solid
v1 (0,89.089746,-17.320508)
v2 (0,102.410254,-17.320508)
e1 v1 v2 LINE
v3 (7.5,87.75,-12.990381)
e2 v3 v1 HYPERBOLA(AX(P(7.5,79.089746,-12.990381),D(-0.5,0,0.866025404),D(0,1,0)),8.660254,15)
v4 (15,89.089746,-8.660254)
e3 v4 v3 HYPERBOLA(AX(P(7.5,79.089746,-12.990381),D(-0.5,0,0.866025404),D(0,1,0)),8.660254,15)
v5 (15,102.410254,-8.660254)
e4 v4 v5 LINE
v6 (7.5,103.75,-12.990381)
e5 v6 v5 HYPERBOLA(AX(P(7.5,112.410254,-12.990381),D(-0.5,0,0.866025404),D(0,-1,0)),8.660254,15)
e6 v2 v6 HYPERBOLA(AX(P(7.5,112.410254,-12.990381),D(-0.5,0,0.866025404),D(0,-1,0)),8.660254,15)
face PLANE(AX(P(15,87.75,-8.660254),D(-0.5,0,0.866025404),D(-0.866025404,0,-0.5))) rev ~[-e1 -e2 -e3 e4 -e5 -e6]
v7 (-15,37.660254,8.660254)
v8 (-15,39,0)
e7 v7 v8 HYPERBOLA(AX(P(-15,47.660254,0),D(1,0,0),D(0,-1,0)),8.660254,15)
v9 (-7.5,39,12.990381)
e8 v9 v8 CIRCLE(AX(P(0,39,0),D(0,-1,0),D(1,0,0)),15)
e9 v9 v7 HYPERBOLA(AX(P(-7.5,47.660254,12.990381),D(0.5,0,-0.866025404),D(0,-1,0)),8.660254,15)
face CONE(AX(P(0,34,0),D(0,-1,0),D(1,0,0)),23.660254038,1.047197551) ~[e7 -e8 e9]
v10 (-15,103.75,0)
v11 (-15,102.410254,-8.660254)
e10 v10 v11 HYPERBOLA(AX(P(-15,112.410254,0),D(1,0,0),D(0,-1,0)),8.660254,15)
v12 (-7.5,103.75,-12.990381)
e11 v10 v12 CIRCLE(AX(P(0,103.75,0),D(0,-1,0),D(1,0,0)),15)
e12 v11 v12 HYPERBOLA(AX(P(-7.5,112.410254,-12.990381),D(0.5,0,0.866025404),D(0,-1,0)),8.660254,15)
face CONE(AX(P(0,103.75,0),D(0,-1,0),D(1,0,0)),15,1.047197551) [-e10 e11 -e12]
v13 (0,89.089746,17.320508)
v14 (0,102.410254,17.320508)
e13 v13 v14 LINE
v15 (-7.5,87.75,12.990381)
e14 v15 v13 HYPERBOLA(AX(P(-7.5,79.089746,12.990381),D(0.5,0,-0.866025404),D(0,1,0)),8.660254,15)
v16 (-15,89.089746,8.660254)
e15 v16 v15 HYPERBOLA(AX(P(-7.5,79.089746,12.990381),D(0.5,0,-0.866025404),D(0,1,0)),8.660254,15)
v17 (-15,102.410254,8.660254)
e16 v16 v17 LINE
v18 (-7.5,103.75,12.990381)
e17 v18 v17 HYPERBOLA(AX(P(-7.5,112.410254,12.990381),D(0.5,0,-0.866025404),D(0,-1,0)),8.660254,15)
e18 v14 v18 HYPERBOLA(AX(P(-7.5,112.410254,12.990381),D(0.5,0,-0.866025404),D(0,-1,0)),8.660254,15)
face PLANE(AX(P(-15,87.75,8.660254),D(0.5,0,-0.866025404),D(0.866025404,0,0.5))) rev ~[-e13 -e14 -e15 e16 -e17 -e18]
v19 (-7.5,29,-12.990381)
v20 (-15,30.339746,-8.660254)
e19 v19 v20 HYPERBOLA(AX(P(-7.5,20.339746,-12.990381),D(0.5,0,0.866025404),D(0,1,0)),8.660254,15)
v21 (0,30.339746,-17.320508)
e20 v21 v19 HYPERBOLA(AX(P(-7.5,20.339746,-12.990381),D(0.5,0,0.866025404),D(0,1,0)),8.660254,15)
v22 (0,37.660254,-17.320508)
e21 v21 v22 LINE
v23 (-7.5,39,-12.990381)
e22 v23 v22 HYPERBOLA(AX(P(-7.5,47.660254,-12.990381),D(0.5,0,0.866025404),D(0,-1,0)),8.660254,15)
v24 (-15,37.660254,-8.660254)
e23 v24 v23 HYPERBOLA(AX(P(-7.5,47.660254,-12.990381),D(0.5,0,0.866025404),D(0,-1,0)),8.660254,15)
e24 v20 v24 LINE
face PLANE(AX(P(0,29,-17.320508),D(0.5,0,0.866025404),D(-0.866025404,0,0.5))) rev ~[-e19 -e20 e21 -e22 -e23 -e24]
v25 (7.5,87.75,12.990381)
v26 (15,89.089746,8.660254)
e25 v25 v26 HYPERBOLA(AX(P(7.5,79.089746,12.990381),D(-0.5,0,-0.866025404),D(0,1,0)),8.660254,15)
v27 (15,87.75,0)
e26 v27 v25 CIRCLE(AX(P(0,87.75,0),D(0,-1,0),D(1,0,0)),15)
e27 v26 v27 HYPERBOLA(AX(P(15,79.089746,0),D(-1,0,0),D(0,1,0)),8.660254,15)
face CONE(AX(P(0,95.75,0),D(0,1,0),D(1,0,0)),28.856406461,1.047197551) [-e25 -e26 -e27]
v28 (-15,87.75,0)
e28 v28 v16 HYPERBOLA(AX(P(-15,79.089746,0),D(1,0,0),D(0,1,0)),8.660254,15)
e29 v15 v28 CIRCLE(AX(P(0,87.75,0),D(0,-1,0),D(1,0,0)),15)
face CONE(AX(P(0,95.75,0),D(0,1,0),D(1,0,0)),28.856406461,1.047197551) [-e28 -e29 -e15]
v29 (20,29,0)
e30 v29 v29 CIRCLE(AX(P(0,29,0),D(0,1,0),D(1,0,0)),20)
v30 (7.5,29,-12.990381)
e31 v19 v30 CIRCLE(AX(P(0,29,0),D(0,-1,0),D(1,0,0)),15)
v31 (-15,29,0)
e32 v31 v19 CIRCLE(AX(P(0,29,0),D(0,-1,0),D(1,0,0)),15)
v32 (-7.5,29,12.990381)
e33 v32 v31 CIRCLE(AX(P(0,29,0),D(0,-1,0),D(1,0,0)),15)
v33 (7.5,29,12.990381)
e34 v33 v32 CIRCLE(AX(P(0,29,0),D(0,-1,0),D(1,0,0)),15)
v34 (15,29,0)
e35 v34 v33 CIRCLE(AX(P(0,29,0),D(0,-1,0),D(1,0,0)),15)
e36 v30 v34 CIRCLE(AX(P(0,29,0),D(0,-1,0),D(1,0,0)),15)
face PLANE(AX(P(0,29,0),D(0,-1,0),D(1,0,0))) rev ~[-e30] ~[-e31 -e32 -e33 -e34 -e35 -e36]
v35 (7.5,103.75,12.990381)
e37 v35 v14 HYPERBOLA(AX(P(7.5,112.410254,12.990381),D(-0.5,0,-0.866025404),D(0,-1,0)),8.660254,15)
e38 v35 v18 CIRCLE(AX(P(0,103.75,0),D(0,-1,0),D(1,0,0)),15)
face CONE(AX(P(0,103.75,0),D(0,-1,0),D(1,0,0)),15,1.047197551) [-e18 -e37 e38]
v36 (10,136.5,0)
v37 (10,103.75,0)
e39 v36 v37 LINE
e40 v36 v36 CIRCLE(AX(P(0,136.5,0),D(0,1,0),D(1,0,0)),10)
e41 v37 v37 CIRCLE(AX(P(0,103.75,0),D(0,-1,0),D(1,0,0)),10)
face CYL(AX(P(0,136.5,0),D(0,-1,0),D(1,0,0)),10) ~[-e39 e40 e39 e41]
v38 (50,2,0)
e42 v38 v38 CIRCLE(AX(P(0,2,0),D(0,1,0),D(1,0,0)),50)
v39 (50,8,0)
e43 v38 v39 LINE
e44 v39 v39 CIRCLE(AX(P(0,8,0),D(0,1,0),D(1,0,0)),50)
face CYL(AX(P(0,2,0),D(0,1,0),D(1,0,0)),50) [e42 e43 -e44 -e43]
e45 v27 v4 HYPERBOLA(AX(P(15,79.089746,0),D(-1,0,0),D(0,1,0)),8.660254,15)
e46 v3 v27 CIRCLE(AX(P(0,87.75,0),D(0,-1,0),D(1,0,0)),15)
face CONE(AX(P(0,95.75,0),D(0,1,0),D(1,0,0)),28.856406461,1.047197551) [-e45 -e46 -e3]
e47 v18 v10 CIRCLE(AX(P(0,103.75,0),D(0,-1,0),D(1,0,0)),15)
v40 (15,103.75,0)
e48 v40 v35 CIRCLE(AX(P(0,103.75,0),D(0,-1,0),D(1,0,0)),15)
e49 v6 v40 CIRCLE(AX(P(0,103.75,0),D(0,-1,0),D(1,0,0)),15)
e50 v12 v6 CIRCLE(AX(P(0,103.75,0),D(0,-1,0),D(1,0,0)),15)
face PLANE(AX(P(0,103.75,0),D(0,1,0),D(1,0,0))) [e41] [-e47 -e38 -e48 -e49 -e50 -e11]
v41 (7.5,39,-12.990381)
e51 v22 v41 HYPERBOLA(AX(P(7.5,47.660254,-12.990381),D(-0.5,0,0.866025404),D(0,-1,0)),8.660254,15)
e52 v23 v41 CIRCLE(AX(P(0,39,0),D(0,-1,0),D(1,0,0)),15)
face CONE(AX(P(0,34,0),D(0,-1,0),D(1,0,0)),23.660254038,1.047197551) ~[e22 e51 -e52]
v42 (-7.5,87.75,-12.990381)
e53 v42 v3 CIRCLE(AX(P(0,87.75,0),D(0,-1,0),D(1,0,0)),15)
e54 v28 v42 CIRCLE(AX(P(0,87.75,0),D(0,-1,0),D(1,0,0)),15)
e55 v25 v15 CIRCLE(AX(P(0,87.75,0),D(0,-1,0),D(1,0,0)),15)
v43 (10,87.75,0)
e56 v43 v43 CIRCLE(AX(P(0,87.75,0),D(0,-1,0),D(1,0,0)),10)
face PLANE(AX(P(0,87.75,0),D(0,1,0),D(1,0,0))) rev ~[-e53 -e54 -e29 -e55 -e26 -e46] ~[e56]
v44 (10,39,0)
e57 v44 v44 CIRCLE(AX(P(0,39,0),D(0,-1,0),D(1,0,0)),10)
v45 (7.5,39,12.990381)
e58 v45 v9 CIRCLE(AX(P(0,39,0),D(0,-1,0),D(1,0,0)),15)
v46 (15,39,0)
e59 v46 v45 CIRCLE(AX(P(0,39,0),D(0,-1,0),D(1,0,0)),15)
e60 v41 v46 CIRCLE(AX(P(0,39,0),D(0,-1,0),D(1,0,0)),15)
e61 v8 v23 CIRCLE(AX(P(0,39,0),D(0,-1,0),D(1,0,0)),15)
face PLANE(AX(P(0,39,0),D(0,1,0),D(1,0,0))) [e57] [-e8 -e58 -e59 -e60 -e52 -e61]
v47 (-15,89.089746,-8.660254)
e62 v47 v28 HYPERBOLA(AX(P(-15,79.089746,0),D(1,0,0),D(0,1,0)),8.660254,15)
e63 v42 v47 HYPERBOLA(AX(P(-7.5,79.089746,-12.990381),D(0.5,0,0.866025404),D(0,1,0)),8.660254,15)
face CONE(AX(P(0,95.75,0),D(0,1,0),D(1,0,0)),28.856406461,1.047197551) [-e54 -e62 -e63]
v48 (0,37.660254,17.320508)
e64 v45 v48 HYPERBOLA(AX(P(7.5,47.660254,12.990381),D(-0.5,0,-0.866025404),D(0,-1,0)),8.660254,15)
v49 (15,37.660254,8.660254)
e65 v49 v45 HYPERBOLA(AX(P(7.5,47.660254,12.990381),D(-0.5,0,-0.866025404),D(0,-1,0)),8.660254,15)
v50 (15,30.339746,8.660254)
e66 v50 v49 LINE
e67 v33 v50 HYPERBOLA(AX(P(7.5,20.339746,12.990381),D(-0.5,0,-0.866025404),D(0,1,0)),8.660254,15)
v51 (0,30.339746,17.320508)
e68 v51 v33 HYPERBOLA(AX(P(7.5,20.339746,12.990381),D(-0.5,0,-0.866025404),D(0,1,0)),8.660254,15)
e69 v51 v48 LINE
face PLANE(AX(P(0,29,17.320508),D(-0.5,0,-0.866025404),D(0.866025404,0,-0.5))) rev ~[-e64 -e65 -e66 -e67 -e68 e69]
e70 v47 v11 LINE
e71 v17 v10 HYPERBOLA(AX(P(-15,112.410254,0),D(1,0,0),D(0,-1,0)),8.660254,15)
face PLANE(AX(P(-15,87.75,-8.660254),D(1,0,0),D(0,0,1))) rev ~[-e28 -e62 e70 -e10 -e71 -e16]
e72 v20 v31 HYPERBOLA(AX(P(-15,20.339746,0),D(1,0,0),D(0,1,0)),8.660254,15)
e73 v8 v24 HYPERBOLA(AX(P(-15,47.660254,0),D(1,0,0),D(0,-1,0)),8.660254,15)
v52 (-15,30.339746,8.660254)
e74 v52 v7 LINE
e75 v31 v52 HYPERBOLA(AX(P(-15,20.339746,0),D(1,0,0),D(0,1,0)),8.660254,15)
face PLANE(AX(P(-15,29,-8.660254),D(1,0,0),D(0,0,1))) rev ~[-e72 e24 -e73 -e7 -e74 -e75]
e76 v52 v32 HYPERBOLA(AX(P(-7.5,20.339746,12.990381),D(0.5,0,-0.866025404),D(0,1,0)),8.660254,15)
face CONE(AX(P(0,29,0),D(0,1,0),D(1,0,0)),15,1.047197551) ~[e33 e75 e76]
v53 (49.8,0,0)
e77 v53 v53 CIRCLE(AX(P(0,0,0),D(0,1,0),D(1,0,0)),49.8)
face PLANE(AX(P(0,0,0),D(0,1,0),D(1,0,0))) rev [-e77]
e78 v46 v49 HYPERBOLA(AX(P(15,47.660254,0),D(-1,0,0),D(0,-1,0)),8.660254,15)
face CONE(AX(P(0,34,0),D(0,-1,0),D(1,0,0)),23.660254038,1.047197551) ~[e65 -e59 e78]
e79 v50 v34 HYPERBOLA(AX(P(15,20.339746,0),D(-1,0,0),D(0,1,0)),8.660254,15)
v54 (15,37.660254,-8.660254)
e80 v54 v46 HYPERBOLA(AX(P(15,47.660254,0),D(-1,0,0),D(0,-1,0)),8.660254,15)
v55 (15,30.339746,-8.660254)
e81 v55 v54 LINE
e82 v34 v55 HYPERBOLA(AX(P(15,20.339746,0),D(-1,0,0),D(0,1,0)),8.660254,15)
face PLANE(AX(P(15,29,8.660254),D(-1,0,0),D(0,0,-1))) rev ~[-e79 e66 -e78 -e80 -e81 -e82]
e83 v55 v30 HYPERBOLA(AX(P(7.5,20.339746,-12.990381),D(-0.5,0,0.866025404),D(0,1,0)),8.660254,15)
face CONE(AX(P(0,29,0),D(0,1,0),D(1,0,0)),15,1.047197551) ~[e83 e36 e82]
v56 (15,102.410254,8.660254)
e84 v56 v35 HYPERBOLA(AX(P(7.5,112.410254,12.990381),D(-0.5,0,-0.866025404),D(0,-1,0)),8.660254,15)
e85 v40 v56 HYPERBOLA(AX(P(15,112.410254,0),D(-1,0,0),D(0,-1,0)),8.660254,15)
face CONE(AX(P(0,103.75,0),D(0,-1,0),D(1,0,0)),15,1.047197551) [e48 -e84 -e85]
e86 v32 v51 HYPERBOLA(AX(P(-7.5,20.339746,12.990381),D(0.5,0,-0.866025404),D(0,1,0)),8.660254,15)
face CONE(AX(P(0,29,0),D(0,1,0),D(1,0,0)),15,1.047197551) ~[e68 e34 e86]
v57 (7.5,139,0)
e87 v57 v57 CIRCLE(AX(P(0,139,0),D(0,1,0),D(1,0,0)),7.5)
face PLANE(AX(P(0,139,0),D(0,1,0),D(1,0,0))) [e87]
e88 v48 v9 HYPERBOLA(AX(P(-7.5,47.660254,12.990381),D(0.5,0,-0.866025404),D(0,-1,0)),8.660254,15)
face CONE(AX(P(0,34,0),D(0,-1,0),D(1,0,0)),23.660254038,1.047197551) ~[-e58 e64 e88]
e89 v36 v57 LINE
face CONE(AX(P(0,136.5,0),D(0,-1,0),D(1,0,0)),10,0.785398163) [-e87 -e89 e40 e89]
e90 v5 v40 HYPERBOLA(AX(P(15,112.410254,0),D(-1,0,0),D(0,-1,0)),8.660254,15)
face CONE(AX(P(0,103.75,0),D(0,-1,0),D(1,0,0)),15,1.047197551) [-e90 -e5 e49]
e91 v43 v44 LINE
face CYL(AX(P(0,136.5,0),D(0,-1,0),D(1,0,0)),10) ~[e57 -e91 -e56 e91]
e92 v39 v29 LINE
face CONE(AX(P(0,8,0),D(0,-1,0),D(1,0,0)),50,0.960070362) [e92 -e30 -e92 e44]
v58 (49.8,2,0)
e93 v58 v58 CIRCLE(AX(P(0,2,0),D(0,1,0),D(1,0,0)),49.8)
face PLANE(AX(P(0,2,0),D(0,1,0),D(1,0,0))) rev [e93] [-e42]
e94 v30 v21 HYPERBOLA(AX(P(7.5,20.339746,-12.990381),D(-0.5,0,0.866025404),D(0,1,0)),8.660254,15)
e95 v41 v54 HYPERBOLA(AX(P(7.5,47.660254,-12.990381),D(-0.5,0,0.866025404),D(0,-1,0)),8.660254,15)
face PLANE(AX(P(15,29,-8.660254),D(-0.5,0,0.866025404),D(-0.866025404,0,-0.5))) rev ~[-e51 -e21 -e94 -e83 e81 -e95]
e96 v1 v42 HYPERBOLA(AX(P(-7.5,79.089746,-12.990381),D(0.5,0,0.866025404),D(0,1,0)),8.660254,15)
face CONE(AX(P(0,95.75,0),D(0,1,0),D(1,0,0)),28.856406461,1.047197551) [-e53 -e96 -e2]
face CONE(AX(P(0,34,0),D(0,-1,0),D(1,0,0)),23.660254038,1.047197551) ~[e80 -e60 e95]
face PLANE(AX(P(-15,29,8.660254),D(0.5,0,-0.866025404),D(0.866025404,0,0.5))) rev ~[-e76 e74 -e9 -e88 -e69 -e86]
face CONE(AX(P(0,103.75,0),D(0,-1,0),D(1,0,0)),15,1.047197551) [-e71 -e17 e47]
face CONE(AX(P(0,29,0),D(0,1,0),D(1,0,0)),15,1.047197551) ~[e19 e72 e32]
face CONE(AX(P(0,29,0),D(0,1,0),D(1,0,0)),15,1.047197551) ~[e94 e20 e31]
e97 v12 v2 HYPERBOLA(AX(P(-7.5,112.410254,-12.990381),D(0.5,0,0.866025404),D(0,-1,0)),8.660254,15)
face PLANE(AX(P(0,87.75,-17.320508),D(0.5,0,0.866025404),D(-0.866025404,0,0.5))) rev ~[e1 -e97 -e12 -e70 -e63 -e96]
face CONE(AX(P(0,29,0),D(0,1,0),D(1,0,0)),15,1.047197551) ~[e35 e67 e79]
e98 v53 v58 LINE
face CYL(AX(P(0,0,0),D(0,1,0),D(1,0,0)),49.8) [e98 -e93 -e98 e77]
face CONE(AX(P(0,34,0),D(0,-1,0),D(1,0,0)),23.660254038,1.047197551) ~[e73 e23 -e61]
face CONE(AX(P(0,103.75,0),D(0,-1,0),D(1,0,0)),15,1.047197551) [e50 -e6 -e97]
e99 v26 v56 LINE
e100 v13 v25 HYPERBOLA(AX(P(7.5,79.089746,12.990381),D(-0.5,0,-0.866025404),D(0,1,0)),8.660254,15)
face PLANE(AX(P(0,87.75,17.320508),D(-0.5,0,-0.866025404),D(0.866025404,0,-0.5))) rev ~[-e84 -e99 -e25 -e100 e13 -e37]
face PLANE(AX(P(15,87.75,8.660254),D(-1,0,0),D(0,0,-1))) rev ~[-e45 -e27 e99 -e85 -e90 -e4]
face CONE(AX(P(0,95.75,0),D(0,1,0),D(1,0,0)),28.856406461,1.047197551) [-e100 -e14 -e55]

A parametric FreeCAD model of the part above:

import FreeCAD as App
import Part
import Sketcher
from FreeCAD import Vector
Q = App.Units.Quantity


def add_polygon(sketch, points):
    """Adds a closed chain of lines whose ends are joined by coincident constraints."""
    first, n = sketch.GeometryCount, len(points)
    for a, b in zip(points, points[1:] + points[:1]):
        sketch.addGeometry(Part.LineSegment(App.Vector(*a, 0), App.Vector(*b, 0)), False)
    for i in range(n):
        sketch.addConstraint(Sketcher.Constraint("Coincident", first + i, 2, first + (i + 1) % n, 1))

doc = App.newDocument("Part")
body = doc.addObject("PartDesign::Body", "Body")

# Sketch on XY plane
sketch1 = doc.addObject("Sketcher::SketchObject", "Sketch")
body.addObject(sketch1)
sketch1.AttachmentSupport = (doc.XY_Plane, [""])
sketch1.MapMode = "FlatFace"
add_polygon(sketch1, [(-49.8, 0), (0, 0), (0, 139), (-7.5, 139), (-10, 136.5), (-10, 29), (-20, 29), (-50, 8), (-50, 2), (-49.8, 2)])  # lines 0-9
sketch1.addConstraint([
    Sketcher.Constraint("Horizontal", 0),
    Sketcher.Constraint("Vertical", 1),
    Sketcher.Constraint("Horizontal", 2),
    Sketcher.Constraint("Vertical", 4),
    Sketcher.Constraint("Horizontal", 5),
    Sketcher.Constraint("Vertical", 7),
    Sketcher.Constraint("Horizontal", 8),
    Sketcher.Constraint("Vertical", 9),
    Sketcher.Constraint("Coincident", 0, 2, -1, 1),
    Sketcher.Constraint("DistanceX", 5, 2, 5, 1, 10.0),
    Sketcher.Constraint("DistanceY", 1, 1, 1, 2, 139.0),
    Sketcher.Constraint("DistanceY", 7, 2, 7, 1, 6.0),
    Sketcher.Constraint("DistanceY", 9, 2, 9, 1, 2.0),
    Sketcher.Constraint("Angle", 3, Q("-135 deg")),
    Sketcher.Constraint("DistanceX", 0, 1, 0, 2, 49.8),
    Sketcher.Constraint("DistanceX", 2, 2, 2, 1, 7.5),
    Sketcher.Constraint("DistanceX", 8, 1, 8, 2, 0.2),
    Sketcher.Constraint("DistanceY", 4, 2, 4, 1, 107.5),
    Sketcher.Constraint("DistanceX", 3, 2, -1, 1, 10.0),
])
revolution = doc.addObject("PartDesign::Revolution", "Revolution")
body.addObject(revolution)
revolution.Profile = sketch1
revolution.ReferenceAxis = (sketch1, ["V_Axis"])
revolution.Angle = 360

# Sketch on XZ plane
sketch2 = doc.addObject("Sketcher::SketchObject", "Sketch001")
body.addObject(sketch2)
sketch2.AttachmentSupport = (doc.XZ_Plane, [""])
sketch2.MapMode = "FlatFace"
sketch2.AttachmentOffset = App.Placement(Vector(0, 0, -29), App.Rotation())
add_polygon(sketch2, [(0, -17.320508), (-15, -8.660254), (-15, 8.660254), (0, 17.320508), (15, 8.660254), (15, -8.660254)])  # lines 0-5
sketch2.addConstraint([
    Sketcher.Constraint("Vertical", 1),
    Sketcher.Constraint("Vertical", 4),
    Sketcher.Constraint("Symmetric", 0, 2, 3, 2, -1, 1),
    Sketcher.Constraint("Symmetric", 2, 2, 5, 2, -1, 1),
    Sketcher.Constraint("PointOnObject", 2, 2, -2),
    Sketcher.Constraint("Parallel", 2, 5),
    Sketcher.Constraint("Horizontal", 1, 2, 3, 2),
    Sketcher.Constraint("Angle", 0, Q("150 deg")),
    Sketcher.Constraint("DistanceX", 0, 2, -1, 1, 15.0),
    Sketcher.Constraint("DistanceY", 1, 1, 1, 2, 17.320508),
])
pad1 = doc.addObject("PartDesign::Pad", "Pad")
body.addObject(pad1)
pad1.Profile = sketch2
pad1.Length = 10
pad1.Reversed = True

# Sketch on XZ plane
sketch3 = doc.addObject("Sketcher::SketchObject", "Sketch002")
body.addObject(sketch3)
sketch3.AttachmentSupport = (doc.XZ_Plane, [""])
sketch3.MapMode = "FlatFace"
sketch3.AttachmentOffset = App.Placement(Vector(0, 0, -87.75), App.Rotation())
add_polygon(sketch3, [(15, -8.660254), (0, -17.320508), (-15, -8.660254), (-15, 8.660254), (0, 17.320508), (15, 8.660254)])  # lines 0-5
sketch3.addConstraint([
    Sketcher.Constraint("Vertical", 2),
    Sketcher.Constraint("Vertical", 5),
    Sketcher.Constraint("Symmetric", 0, 2, 3, 2, -1, 1),
    Sketcher.Constraint("Symmetric", 1, 2, 4, 2, -1, 1),
    Sketcher.Constraint("PointOnObject", 0, 2, -2),
    Sketcher.Constraint("Parallel", 0, 3),
    Sketcher.Constraint("Horizontal", 2, 2, 4, 2),
    Sketcher.Constraint("Angle", 0, Q("-150 deg")),
    Sketcher.Constraint("DistanceX", 1, 2, -1, 1, 15.0),
    Sketcher.Constraint("DistanceY", 2, 1, 2, 2, 17.320508),
])
pad2 = doc.addObject("PartDesign::Pad", "Pad001")
body.addObject(pad2)
pad2.Profile = sketch3
pad2.Length = 16
pad2.Reversed = True

# Sketch on XY plane
sketch4 = doc.addObject("Sketcher::SketchObject", "Sketch003")
body.addObject(sketch4)
sketch4.AttachmentSupport = (doc.XY_Plane, [""])
sketch4.MapMode = "FlatFace"
add_polygon(sketch4, [(-15, 103.75), (-28.856406, 103.75), (-28.856406, 95.75)])  # lines 0-2
add_polygon(sketch4, [(-28.856406, 95.75), (-28.856406, 87.75), (-15, 87.75)])  # lines 3-5
add_polygon(sketch4, [(-23.660254, 39), (-23.660254, 34), (-15, 39)])  # lines 6-8
add_polygon(sketch4, [(-23.660254, 34), (-23.660254, 29), (-15, 29)])  # lines 9-11
sketch4.addConstraint([
    Sketcher.Constraint("Horizontal", 0),
    Sketcher.Constraint("Vertical", 1),
    Sketcher.Constraint("Vertical", 3),
    Sketcher.Constraint("Horizontal", 4),
    Sketcher.Constraint("Vertical", 6),
    Sketcher.Constraint("Horizontal", 8),
    Sketcher.Constraint("Vertical", 9),
    Sketcher.Constraint("Horizontal", 10),
    Sketcher.Constraint("Coincident", 5, 2, 1, 2),
    Sketcher.Constraint("Coincident", 11, 2, 6, 2),
    Sketcher.Constraint("Parallel", 2, 7),
    Sketcher.Constraint("Parallel", 5, 11),
    Sketcher.Constraint("Vertical", 2, 2, 4, 2),
    Sketcher.Constraint("Vertical", 4, 2, 7, 2),
    Sketcher.Constraint("Vertical", 7, 2, 10, 2),
    Sketcher.Constraint("Equal", 1, 3),
    Sketcher.Constraint("DistanceY", 1, 2, 1, 1, 8.0),
    Sketcher.Constraint("DistanceY", 6, 2, 6, 1, 5.0),
    Sketcher.Constraint("Angle", 2, Q("30 deg")),
    Sketcher.Constraint("DistanceX", 2, 2, -1, 1, 15.0),
    Sketcher.Constraint("DistanceY", -1, 1, 6, 2, 34.0),
    Sketcher.Constraint("DistanceY", -1, 1, 0, 2, 103.75),
])
groove = doc.addObject("PartDesign::Groove", "Groove")
body.addObject(groove)
groove.Profile = sketch4
groove.ReferenceAxis = (sketch4, ["V_Axis"])
groove.Angle = 360

doc.recompute()
